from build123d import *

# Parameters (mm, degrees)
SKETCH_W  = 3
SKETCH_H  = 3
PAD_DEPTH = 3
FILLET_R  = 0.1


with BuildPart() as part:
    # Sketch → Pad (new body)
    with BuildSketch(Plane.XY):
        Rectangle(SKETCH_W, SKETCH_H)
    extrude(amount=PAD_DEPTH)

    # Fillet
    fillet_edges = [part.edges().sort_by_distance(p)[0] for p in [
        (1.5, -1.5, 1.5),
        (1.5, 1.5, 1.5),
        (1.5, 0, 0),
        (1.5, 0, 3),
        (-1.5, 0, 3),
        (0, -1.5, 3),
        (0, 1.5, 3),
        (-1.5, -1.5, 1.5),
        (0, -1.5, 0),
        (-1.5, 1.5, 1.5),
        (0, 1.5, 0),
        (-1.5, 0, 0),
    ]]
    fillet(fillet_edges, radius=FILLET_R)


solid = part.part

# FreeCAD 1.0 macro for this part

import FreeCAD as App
import Part
import Sketcher

V = App.Vector


def add_polygon(sketch, points):
    """Adds a closed chain of lines whose ends are joined by coincident constraints."""
    first, n = sketch.GeometryCount, len(points)
    for a, b in zip(points, points[1:] + points[:1]):
        sketch.addGeometry(Part.LineSegment(App.Vector(*a, 0), App.Vector(*b, 0)), False)
    for i in range(n):
        sketch.addConstraint(Sketcher.Constraint("Coincident", first + i, 2, first + (i + 1) % n, 1))

doc = App.newDocument("Part")
params = doc.addObject("Spreadsheet::Sheet", "Params")
for row, (alias, value) in enumerate([
    ("sketch1_width", "3 mm"),
    ("pad1_length", "3 mm"),
    ("fillet_radius", "0.1 mm"),
], start=1):
    params.set(f"A{row}", alias)
    params.set(f"B{row}", "=" + value)
    params.setAlias(f"B{row}", alias)

body = doc.addObject("PartDesign::Body", "Body")

sketch1 = body.newObject("Sketcher::SketchObject", "Sketch")
sketch1.AttachmentSupport = (doc.getObject("XY_Plane"), [""])
sketch1.MapMode = "FlatFace"
add_polygon(sketch1, [(-1.5, 1.5), (-1.5, -1.5), (1.5, -1.5), (1.5, 1.5)])
sketch1.addConstraint([
    Sketcher.Constraint("Vertical", 0),
    Sketcher.Constraint("Horizontal", 1),
    Sketcher.Constraint("Vertical", 2),
    Sketcher.Constraint("Horizontal", 3),
    Sketcher.Constraint("Symmetric", 0, 2, 2, 2, -1, 1),
    Sketcher.Constraint("Equal", 3, 0),
    Sketcher.Constraint("DistanceX", 1, 1, 1, 2, 3.0),
])
sketch1.setExpression("Constraints[10]", "Params.sketch1_width")
pad1 = body.newObject("PartDesign::Pad", "Pad")
pad1.Profile = sketch1
pad1.setExpression("Length", "Params.pad1_length")
doc.recompute()

fillet = body.newObject("PartDesign::Fillet", "Fillet")
fillet.Base = (pad1, ["Edge1"])
fillet.UseAllEdges = True
fillet.setExpression("Radius", "Params.fillet_radius")

doc.recompute()
